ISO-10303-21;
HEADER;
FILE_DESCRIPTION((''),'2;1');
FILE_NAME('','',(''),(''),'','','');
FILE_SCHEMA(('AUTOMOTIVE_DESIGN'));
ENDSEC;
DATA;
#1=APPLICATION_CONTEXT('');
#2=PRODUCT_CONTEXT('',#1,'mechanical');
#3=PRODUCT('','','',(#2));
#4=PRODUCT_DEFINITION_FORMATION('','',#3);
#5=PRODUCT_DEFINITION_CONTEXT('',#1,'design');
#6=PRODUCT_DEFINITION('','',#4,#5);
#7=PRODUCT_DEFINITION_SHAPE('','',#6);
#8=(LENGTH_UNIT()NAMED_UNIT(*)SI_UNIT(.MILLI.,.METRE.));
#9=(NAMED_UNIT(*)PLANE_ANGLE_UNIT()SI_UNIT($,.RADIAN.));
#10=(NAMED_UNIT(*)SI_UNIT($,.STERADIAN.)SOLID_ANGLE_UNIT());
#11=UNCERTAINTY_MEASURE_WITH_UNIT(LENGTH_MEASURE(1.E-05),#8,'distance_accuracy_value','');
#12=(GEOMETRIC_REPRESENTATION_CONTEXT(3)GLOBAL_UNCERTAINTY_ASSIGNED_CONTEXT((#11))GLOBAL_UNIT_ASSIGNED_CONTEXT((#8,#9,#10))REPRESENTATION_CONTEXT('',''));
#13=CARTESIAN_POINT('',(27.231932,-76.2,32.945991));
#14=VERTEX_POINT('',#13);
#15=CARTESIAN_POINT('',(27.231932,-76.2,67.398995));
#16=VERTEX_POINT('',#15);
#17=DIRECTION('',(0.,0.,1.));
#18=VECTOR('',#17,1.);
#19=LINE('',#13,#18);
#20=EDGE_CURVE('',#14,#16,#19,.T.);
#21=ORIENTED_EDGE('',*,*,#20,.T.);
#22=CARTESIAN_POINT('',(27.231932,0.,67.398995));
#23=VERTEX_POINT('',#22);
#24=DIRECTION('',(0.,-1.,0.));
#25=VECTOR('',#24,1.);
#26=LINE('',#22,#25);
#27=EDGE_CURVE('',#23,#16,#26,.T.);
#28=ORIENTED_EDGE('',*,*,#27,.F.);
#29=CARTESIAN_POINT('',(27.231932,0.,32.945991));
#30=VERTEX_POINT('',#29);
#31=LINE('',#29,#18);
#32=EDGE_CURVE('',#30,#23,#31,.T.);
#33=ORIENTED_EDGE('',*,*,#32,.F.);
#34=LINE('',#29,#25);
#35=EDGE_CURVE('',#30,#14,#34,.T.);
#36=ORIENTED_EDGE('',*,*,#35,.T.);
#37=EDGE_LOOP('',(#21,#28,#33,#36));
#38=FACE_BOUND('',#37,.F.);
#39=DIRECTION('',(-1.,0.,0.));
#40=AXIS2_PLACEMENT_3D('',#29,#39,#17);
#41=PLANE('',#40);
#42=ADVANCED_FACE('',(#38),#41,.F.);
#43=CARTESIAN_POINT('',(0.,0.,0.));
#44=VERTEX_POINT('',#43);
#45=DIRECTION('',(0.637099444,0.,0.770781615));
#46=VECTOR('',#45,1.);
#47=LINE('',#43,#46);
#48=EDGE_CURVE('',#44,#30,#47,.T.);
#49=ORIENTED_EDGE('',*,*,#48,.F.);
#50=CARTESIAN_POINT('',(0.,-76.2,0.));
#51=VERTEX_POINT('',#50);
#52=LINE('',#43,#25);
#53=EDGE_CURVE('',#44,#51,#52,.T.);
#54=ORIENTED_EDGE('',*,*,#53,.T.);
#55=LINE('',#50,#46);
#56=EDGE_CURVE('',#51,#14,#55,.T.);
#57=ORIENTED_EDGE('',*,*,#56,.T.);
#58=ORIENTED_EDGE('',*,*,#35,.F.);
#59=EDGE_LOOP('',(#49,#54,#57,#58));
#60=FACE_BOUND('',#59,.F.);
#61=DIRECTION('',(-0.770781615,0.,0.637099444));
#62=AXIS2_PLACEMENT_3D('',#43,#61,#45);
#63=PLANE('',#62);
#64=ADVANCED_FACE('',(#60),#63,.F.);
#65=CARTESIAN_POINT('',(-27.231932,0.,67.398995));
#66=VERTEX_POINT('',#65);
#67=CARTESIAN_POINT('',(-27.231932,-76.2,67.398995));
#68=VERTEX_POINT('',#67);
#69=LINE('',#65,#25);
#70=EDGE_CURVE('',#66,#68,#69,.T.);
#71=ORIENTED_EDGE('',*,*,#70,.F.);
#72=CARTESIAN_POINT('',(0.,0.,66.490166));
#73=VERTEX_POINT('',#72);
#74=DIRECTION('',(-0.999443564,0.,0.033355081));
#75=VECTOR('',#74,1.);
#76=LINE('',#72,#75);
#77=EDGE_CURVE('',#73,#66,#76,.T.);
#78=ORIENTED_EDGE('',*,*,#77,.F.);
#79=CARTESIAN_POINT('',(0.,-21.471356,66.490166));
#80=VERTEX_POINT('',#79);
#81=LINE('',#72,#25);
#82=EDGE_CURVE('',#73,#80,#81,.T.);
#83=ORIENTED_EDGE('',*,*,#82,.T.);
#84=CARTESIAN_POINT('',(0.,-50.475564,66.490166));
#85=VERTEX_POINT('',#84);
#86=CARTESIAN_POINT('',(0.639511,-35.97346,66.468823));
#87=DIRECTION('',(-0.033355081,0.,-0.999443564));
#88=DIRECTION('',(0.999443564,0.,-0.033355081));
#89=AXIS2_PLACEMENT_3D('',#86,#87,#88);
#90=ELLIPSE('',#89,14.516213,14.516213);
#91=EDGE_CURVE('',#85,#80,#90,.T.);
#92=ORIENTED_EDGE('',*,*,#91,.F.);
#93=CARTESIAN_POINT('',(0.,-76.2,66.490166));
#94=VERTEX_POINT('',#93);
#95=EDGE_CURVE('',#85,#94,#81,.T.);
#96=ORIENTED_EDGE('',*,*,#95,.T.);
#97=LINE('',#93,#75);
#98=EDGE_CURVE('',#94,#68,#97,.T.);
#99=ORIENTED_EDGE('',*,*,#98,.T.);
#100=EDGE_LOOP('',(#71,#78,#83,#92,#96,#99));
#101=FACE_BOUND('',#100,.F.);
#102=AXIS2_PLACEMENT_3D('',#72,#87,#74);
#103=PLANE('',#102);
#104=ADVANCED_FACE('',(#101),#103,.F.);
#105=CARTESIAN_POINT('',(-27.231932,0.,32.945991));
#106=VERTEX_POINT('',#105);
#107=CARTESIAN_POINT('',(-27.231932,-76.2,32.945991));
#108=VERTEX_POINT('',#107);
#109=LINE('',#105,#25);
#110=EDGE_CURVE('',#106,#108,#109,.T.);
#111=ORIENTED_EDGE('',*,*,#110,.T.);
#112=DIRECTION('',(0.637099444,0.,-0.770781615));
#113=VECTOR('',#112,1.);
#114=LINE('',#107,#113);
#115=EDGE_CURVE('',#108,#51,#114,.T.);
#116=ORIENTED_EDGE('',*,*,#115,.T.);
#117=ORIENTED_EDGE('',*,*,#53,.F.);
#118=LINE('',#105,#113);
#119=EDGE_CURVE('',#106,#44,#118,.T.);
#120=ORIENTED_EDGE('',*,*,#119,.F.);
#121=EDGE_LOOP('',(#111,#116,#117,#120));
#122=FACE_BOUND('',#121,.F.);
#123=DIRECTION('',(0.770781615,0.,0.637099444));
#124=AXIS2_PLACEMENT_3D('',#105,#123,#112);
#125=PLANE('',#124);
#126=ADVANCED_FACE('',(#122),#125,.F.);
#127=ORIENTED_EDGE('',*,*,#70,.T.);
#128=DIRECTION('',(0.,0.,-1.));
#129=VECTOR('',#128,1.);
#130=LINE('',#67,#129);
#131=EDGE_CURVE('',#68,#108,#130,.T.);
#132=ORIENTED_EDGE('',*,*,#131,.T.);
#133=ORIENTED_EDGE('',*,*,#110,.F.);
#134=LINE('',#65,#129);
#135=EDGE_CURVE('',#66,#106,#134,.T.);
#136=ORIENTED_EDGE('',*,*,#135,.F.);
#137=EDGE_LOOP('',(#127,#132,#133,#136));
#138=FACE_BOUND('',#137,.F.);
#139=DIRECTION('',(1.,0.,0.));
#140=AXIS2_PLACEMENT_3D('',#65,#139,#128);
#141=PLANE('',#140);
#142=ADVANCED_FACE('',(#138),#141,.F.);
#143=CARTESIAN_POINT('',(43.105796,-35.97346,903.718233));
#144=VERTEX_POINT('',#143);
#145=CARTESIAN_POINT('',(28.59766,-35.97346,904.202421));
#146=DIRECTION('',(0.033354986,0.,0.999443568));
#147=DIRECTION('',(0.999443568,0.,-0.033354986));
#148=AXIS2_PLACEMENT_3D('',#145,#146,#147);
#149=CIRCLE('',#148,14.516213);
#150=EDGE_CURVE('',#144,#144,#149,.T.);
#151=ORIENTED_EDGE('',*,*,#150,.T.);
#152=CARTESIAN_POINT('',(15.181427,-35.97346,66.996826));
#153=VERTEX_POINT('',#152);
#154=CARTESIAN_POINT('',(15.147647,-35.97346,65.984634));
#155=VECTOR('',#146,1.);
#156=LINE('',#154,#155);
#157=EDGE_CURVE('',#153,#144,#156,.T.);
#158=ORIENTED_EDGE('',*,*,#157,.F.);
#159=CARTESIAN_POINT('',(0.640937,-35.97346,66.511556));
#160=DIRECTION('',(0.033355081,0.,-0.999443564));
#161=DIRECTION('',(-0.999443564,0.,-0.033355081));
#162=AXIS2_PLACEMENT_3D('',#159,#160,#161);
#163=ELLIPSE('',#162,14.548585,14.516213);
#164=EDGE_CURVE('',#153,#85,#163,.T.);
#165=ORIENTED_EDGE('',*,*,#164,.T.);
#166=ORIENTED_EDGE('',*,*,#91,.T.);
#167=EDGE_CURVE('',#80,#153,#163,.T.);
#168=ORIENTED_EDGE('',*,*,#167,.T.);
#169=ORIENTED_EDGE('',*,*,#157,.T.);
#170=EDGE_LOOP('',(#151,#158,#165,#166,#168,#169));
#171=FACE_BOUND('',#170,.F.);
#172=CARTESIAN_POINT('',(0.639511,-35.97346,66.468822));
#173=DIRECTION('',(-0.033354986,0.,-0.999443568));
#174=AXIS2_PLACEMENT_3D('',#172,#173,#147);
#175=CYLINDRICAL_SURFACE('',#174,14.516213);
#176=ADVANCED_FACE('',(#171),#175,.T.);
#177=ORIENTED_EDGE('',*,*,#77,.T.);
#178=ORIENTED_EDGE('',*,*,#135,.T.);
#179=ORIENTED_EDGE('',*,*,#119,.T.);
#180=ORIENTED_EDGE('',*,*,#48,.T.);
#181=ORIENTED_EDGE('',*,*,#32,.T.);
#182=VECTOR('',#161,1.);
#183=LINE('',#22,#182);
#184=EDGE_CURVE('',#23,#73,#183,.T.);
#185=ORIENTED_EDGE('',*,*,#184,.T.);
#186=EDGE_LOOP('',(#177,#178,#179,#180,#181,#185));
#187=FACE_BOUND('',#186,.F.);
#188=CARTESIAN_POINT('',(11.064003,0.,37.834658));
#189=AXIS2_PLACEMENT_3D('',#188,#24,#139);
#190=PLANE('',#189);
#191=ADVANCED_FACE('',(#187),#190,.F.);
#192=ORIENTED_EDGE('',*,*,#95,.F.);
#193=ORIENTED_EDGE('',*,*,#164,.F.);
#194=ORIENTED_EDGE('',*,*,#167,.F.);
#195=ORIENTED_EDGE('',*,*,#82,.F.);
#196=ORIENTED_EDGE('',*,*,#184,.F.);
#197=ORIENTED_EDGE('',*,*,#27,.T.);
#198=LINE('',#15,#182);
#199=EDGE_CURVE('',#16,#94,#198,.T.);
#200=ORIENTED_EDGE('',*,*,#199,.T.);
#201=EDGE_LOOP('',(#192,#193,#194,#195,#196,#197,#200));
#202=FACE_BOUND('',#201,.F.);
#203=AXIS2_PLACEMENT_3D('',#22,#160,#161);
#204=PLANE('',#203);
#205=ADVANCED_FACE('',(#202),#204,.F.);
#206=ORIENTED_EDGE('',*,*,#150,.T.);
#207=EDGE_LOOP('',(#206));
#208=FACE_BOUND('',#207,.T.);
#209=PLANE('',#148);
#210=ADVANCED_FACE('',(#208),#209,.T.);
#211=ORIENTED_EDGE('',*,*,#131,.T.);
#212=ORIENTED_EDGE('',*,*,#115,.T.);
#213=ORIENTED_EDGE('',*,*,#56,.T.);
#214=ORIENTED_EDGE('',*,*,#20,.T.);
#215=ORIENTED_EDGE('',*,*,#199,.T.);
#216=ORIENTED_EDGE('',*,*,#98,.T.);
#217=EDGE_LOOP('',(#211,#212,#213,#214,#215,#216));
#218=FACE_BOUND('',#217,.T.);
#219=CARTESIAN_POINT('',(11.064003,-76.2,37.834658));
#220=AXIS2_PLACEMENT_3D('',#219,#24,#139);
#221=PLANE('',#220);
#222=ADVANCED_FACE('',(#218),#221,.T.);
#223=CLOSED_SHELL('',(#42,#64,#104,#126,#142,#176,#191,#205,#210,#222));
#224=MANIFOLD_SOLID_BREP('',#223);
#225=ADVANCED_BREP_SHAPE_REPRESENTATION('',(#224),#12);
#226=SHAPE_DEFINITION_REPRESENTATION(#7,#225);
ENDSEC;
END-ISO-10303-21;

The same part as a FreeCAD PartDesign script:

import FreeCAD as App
import Part
import Sketcher

V = App.Vector
Q = App.Units.Quantity


def add_polygon(sketch, points):
    """Adds a closed chain of lines whose ends are joined by coincident constraints."""
    first, n = sketch.GeometryCount, len(points)
    for a, b in zip(points, points[1:] + points[:1]):
        sketch.addGeometry(Part.LineSegment(App.Vector(*a, 0), App.Vector(*b, 0)), False)
    for i in range(n):
        sketch.addConstraint(Sketcher.Constraint("Coincident", first + i, 2, first + (i + 1) % n, 1))

doc = App.newDocument("Part")
body = doc.addObject("PartDesign::Body", "Body")

# Sketch on XZ plane
sketch1 = doc.addObject("Sketcher::SketchObject", "Sketch")
body.addObject(sketch1)
sketch1.AttachmentSupport = (doc.XZ_Plane, [""])
sketch1.MapMode = "FlatFace"
add_polygon(sketch1, [(0, 0), (27, 33), (27, 67), (0, 66), (-27, 67), (-27, 33)])  # lines 0-5
sketch1.addConstraint([
    Sketcher.Constraint("Vertical", 1),
    Sketcher.Constraint("Vertical", 4),
    Sketcher.Constraint("Coincident", 5, 2, -1, 1),
    Sketcher.Constraint("Symmetric", 1, 2, 3, 2, -2),
    Sketcher.Constraint("PointOnObject", 2, 2, -2),
    Sketcher.Constraint("Horizontal", 0, 2, 4, 2),
    Sketcher.Constraint("DistanceY", 1, 1, 1, 2, Q("34.453004 mm")),
    Sketcher.Constraint("DistanceY", -1, 1, 0, 2, Q("32.945991 mm")),
    Sketcher.Constraint("DistanceY", 2, 2, 1, 2, Q("0.908829 mm")),
    Sketcher.Constraint("Distance", 0, Q("42.743613 mm")),
])
pad1 = doc.addObject("PartDesign::Pad", "Pad")
body.addObject(pad1)
pad1.Profile = sketch1
pad1.Length = Q("3 in")

# Sketch on an angled plane
sketch2 = doc.addObject("Sketcher::SketchObject", "Sketch001")
body.addObject(sketch2)
sketch2.Placement = App.Placement(V(2.216551, 0, 66.416191), App.Rotation(V(0.999443568, 0, -0.033354986), V(0, 1.000000001, 0), V(0.033354986, 0, 0.999443568), "ZXY"))
sketch2.addGeometry(Part.Circle(V(-2, -36, 0), V(0, 0, 1), 15), False)
sketch2.addConstraint([
    Sketcher.Constraint("Diameter", 0, Q("29.032426 mm")),
    Sketcher.Constraint("DistanceX", 0, 3, -1, 1, Q("1.577918 mm")),
    Sketcher.Constraint("DistanceY", 0, 3, -1, 1, Q("35.97346 mm")),
])
pad2 = doc.addObject("PartDesign::Pad", "Pad001")
body.addObject(pad2)
pad2.Profile = sketch2
pad2.Length = Q("33 in")

doc.recompute()
